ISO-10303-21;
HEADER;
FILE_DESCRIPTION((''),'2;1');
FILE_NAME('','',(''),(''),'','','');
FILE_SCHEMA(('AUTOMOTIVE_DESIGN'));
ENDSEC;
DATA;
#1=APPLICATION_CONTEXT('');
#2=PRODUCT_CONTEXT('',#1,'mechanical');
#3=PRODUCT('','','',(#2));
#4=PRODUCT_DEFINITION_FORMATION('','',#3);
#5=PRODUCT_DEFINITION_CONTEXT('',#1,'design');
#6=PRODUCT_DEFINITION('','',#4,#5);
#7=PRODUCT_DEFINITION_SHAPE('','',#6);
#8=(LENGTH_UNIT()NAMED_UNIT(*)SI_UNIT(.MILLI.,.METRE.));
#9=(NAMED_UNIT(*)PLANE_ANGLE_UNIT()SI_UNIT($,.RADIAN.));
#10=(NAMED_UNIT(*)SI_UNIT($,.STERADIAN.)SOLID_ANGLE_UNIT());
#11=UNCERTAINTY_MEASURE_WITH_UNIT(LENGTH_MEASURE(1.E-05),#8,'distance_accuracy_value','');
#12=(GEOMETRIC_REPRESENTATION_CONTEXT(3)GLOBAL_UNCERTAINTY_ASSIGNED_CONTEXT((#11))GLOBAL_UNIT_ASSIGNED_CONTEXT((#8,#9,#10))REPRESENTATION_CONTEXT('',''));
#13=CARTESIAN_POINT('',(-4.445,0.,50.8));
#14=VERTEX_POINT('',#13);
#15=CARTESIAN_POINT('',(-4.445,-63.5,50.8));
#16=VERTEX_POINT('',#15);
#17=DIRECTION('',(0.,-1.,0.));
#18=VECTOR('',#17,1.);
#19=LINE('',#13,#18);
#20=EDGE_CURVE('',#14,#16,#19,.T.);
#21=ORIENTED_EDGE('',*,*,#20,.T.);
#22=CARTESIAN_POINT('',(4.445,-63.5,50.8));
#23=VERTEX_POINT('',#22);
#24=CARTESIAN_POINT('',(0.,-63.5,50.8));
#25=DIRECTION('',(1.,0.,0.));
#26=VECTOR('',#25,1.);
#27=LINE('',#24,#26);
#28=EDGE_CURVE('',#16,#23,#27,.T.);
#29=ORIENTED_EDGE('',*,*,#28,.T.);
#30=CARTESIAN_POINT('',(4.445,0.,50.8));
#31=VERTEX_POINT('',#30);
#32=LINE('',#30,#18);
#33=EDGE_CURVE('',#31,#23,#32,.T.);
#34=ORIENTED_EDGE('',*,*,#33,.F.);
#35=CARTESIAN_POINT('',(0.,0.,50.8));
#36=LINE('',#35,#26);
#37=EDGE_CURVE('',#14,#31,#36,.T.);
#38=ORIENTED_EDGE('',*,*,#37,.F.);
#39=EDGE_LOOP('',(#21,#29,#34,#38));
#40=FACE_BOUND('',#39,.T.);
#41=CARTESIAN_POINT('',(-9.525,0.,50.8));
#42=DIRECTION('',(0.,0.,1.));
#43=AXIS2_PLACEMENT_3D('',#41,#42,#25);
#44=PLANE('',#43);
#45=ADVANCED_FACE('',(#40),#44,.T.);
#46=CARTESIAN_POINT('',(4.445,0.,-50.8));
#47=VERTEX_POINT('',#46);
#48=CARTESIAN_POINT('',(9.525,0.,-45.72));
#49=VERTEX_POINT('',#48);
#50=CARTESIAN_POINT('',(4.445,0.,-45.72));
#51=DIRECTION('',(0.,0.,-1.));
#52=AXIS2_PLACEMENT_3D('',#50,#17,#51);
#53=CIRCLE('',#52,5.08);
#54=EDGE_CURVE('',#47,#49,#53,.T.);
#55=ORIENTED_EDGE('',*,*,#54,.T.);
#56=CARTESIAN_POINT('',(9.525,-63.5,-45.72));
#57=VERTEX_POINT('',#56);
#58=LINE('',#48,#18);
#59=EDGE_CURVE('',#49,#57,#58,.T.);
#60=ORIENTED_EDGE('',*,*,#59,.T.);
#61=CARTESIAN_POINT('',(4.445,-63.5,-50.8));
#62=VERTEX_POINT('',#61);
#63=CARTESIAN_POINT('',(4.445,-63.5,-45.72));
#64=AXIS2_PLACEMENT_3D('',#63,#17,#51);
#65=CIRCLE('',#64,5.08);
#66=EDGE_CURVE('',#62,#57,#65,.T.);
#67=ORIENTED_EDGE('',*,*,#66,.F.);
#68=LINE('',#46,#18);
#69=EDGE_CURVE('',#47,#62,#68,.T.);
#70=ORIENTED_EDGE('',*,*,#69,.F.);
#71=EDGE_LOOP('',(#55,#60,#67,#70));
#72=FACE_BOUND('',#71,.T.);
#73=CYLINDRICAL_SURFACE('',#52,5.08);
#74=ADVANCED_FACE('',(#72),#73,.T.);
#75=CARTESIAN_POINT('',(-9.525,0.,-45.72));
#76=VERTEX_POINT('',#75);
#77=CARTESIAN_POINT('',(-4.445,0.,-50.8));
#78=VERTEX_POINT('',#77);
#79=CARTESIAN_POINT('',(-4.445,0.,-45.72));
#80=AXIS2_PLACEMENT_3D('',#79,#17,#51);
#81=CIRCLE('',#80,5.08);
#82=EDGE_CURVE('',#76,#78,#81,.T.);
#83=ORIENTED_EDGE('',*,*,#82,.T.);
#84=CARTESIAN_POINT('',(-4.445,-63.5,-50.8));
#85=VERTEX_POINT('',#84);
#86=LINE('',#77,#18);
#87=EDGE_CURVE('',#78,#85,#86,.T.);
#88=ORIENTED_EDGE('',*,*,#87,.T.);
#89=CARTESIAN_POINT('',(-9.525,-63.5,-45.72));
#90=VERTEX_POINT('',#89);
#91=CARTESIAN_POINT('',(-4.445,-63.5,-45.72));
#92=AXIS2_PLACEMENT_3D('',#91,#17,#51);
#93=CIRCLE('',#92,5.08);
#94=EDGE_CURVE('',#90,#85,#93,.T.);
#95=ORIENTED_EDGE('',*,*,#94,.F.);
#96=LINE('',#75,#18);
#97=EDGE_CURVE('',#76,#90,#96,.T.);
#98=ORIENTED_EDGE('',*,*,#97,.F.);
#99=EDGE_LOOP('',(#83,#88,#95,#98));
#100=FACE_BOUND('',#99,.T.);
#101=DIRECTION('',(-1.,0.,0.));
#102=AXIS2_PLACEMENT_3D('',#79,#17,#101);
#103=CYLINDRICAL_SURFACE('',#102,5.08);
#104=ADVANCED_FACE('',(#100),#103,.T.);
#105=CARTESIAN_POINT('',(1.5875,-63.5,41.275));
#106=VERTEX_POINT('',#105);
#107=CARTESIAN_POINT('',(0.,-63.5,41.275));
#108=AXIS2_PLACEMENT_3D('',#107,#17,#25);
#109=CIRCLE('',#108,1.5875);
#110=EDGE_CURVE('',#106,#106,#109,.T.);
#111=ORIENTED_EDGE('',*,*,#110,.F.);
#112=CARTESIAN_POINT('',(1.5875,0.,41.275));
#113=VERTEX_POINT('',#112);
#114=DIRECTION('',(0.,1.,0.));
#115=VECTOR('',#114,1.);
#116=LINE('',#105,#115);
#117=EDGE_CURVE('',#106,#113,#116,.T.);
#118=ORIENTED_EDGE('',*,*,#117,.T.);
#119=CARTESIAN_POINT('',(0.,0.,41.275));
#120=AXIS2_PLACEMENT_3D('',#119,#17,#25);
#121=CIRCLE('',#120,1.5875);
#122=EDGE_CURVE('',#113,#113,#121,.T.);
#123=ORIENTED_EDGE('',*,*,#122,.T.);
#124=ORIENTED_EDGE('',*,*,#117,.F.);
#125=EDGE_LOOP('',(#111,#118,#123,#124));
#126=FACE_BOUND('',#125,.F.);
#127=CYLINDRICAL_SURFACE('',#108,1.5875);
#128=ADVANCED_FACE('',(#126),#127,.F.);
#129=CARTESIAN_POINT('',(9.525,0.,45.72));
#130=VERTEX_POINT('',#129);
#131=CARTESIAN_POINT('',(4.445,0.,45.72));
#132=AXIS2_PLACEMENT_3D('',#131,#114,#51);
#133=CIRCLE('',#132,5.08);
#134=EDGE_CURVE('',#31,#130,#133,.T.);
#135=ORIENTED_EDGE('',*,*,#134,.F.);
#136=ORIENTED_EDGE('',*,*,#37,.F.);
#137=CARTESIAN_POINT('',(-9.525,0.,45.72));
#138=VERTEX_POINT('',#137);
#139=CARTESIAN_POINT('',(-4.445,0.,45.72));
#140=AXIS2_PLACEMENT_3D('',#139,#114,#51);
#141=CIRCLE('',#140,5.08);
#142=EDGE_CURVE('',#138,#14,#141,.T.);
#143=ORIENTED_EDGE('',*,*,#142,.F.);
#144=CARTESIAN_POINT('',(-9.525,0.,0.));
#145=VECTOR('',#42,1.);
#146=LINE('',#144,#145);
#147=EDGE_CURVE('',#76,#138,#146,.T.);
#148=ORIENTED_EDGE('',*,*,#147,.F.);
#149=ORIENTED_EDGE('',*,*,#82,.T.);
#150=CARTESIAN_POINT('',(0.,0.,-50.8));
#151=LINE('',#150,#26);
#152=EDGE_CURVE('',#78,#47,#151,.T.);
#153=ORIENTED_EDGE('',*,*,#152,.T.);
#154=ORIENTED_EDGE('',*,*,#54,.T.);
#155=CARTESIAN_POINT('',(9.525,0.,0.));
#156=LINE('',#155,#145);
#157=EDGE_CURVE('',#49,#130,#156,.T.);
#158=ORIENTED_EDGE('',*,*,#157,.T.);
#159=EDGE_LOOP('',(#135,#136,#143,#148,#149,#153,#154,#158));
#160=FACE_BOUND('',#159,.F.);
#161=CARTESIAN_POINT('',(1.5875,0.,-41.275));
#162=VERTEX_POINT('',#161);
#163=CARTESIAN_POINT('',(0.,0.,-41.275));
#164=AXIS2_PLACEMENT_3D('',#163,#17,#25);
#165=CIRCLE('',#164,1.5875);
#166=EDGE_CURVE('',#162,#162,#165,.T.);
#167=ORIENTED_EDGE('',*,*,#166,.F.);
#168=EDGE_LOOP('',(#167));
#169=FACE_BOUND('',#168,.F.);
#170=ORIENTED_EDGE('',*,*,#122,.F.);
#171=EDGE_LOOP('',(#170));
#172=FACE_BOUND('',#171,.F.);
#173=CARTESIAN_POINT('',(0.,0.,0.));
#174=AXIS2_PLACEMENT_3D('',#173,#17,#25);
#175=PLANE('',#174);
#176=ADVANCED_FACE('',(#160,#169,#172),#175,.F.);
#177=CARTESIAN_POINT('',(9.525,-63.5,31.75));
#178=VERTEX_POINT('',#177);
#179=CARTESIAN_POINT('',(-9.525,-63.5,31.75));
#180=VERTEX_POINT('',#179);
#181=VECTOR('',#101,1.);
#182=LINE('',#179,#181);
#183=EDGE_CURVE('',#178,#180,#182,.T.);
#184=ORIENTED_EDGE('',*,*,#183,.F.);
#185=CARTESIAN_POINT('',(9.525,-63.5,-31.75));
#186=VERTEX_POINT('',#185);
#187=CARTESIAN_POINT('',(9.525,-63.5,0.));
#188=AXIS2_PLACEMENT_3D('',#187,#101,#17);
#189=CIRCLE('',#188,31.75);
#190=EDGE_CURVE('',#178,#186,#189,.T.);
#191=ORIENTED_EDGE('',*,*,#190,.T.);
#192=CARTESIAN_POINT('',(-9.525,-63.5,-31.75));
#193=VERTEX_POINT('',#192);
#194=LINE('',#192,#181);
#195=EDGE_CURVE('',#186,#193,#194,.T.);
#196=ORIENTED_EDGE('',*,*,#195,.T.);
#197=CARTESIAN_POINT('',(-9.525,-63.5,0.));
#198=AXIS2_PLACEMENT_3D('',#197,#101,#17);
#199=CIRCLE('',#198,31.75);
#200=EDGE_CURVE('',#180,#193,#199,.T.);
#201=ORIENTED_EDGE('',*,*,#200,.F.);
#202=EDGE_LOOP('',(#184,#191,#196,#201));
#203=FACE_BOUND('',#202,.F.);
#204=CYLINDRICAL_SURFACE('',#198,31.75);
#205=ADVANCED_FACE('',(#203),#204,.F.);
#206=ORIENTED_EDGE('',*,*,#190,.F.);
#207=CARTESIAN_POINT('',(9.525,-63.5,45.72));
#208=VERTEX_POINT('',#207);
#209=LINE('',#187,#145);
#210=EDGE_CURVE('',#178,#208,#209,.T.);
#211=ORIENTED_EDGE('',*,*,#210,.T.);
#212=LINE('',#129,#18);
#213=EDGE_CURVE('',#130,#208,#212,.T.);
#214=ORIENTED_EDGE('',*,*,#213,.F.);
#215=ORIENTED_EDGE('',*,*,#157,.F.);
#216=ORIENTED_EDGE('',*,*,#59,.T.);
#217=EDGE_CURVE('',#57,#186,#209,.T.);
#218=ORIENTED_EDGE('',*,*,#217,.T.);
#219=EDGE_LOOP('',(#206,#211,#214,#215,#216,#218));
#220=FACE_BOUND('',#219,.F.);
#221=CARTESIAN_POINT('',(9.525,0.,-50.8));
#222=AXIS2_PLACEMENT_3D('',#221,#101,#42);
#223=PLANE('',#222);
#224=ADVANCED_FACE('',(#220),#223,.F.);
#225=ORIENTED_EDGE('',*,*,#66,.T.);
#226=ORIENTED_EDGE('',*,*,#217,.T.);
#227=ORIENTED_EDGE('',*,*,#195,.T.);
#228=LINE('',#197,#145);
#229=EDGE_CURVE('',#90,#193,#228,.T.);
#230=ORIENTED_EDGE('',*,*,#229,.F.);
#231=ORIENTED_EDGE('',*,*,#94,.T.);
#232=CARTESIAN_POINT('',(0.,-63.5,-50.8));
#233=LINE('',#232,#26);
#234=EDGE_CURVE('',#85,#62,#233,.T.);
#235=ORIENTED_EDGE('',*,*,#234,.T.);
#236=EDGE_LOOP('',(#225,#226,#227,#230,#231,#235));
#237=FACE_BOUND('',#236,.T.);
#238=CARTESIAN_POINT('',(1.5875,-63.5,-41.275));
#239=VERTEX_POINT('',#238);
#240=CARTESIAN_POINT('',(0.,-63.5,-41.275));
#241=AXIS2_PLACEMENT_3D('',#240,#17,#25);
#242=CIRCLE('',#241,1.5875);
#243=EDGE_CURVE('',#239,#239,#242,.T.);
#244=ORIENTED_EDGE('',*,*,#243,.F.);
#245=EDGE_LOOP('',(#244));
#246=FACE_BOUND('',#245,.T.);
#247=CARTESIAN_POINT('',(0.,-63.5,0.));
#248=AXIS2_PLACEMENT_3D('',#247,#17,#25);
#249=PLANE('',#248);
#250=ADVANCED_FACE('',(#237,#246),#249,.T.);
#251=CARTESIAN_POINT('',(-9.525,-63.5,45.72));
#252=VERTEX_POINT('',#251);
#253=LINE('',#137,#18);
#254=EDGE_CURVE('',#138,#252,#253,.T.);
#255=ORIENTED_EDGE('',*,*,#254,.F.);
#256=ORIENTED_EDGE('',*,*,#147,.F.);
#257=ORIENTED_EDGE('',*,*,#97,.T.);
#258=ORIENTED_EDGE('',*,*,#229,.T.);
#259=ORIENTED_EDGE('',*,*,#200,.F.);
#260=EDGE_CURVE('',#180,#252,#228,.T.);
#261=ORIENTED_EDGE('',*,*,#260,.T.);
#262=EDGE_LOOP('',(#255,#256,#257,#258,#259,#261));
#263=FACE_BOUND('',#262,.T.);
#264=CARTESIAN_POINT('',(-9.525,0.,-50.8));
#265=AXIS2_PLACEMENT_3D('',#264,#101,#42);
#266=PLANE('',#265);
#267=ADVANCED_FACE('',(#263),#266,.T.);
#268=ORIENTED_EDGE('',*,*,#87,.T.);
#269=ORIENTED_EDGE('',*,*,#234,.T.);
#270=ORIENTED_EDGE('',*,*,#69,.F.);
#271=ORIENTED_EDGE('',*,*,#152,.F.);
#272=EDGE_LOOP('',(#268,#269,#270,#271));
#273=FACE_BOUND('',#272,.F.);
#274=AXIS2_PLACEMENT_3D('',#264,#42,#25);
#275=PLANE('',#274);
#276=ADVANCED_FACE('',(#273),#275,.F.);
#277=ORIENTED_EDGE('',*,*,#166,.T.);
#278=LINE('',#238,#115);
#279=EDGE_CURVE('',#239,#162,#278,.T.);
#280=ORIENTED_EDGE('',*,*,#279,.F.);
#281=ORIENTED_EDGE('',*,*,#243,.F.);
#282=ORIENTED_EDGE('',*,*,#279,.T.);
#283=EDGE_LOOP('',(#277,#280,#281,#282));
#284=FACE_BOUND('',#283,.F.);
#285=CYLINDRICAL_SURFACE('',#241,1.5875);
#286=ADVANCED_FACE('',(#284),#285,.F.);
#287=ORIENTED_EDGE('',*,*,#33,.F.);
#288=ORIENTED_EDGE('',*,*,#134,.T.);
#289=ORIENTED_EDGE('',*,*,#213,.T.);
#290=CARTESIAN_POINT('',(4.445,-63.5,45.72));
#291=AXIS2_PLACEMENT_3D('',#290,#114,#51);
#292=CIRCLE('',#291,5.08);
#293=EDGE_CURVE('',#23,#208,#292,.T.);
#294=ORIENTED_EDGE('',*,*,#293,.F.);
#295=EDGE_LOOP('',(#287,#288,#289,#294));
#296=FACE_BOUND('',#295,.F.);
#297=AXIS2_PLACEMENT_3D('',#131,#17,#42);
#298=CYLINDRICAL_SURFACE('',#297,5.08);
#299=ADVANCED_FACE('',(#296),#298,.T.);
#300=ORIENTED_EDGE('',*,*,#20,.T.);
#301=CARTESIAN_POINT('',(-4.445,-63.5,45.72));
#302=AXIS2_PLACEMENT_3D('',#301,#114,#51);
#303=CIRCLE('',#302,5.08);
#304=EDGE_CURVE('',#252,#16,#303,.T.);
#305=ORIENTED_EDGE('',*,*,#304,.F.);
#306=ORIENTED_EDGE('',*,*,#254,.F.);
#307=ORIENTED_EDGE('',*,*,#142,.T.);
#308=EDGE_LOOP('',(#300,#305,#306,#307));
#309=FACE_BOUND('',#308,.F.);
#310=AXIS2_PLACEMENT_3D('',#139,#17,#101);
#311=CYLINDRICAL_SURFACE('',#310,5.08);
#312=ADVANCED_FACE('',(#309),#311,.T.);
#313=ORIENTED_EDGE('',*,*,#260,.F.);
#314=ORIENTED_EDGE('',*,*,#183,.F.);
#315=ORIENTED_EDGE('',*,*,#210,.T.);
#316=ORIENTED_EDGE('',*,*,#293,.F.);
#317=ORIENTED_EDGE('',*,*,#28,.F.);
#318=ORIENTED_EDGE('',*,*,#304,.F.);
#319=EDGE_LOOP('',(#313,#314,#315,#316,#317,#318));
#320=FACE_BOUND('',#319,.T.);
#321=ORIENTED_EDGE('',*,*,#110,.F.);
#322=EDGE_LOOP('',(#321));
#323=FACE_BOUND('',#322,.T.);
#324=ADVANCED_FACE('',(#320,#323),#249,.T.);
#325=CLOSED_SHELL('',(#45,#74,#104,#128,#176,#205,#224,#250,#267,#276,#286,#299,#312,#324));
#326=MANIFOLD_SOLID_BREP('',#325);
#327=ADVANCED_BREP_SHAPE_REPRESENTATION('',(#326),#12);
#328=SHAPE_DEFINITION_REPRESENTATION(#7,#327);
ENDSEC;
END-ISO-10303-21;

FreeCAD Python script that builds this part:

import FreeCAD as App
import Part
import Sketcher
Q = App.Units.Quantity


def edges_at(feature, points):
    """Names of the edges that pass closest to the given points."""
    edges = feature.Shape.Edges
    near = lambda p: min(range(len(edges)), key=lambda i: edges[i].distToShape(Part.Vertex(*p))[0])
    return sorted({f"Edge{near(p) + 1}" for p in points})

doc = App.newDocument("Part")
body = doc.addObject("PartDesign::Body", "Body")

# Sketch on XZ plane
sketch1 = body.newObject("Sketcher::SketchObject", "Sketch")
sketch1.AttachmentSupport = (doc.getObject("XZ_Plane"), [""])
sketch1.MapMode = "FlatFace"
sketch1.addGeometry([
    Part.LineSegment(App.Vector(-9.525, 50.8, 0), App.Vector(-9.525, -50.8, 0)),
    Part.LineSegment(App.Vector(-9.525, -50.8, 0), App.Vector(9.525, -50.8, 0)),
    Part.LineSegment(App.Vector(9.525, -50.8, 0), App.Vector(9.525, 50.8, 0)),
    Part.LineSegment(App.Vector(9.525, 50.8, 0), App.Vector(-9.525, 50.8, 0)),
], False)
sketch1.addConstraint([
    Sketcher.Constraint("Coincident", 0, 2, 1, 1),
    Sketcher.Constraint("Coincident", 1, 2, 2, 1),
    Sketcher.Constraint("Coincident", 2, 2, 3, 1),
    Sketcher.Constraint("Coincident", 3, 2, 0, 1),
    Sketcher.Constraint("Vertical", 0),
    Sketcher.Constraint("Horizontal", 1),
    Sketcher.Constraint("Vertical", 2),
    Sketcher.Constraint("Horizontal", 3),
    Sketcher.Constraint("Symmetric", 0, 2, 2, 2, -1, 1),
    Sketcher.Constraint("DistanceY", 0, 2, 0, 1, Q("4 in")),
    Sketcher.Constraint("DistanceX", 1, 1, 1, 2, Q("0.75 in")),
])
pad1 = body.newObject("PartDesign::Pad", "Pad")
pad1.Profile = sketch1
pad1.Length = Q("2.5 in")

# Sketch on YZ plane
sketch2 = body.newObject("Sketcher::SketchObject", "Sketch001")
sketch2.AttachmentSupport = (doc.getObject("YZ_Plane"), [""])
sketch2.MapMode = "FlatFace"
sketch2.AttachmentOffset = App.Placement(App.Vector(0, 0, -0.375 * 25.4), App.Rotation())
sketch2.addGeometry(Part.Circle(App.Vector(-63.5, 0, 0), App.Vector(0, 0, 1), 31.75), False)
sketch2.addConstraint([
    Sketcher.Constraint("PointOnObject", 0, 3, -1),
    Sketcher.Constraint("Diameter", 0, Q("2.5 in")),
    Sketcher.Constraint("DistanceX", 0, 3, -1, 1, Q("2.5 in")),
])
pocket1 = body.newObject("PartDesign::Pocket", "Pocket")
pocket1.Profile = sketch2
pocket1.Length = Q("0.75 in")
pocket1.Reversed = True

# Sketch on XZ plane
sketch3 = body.newObject("Sketcher::SketchObject", "Sketch002")
sketch3.AttachmentSupport = (doc.getObject("XZ_Plane"), [""])
sketch3.MapMode = "FlatFace"
sketch3.AttachmentOffset = App.Placement(App.Vector(0, 0, 2.5 * 25.4), App.Rotation())
sketch3.addGeometry([
    Part.Circle(App.Vector(0, 41.275, 0), App.Vector(0, 0, 1), 1.5875),
    Part.Circle(App.Vector(0, -41.275, 0), App.Vector(0, 0, 1), 1.5875),
], False)
sketch3.addConstraint([
    Sketcher.Constraint("Equal", 0, 1),
    Sketcher.Constraint("Symmetric", 0, 3, 1, 3, -1, 1),
    Sketcher.Constraint("PointOnObject", 0, 3, -2),
    Sketcher.Constraint("Diameter", 0, Q("0.125 in")),
    Sketcher.Constraint("DistanceY", 1, 3, 0, 3, Q("3.25 in")),
])
pocket2 = body.newObject("PartDesign::Pocket", "Pocket001")
pocket2.Profile = sketch3
pocket2.Length = Q("2.5 in")
doc.recompute()

fillet = body.newObject("PartDesign::Fillet", "Fillet")
fillet.Base = (pocket2, edges_at(pocket2, [
    (-9.525, -31.75, 50.8),
    (-9.525, -31.75, -50.8),
    (9.525, -31.75, -50.8),
    (9.525, -31.75, 50.8),
]))
fillet.Radius = Q("0.2 in")

doc.recompute()
